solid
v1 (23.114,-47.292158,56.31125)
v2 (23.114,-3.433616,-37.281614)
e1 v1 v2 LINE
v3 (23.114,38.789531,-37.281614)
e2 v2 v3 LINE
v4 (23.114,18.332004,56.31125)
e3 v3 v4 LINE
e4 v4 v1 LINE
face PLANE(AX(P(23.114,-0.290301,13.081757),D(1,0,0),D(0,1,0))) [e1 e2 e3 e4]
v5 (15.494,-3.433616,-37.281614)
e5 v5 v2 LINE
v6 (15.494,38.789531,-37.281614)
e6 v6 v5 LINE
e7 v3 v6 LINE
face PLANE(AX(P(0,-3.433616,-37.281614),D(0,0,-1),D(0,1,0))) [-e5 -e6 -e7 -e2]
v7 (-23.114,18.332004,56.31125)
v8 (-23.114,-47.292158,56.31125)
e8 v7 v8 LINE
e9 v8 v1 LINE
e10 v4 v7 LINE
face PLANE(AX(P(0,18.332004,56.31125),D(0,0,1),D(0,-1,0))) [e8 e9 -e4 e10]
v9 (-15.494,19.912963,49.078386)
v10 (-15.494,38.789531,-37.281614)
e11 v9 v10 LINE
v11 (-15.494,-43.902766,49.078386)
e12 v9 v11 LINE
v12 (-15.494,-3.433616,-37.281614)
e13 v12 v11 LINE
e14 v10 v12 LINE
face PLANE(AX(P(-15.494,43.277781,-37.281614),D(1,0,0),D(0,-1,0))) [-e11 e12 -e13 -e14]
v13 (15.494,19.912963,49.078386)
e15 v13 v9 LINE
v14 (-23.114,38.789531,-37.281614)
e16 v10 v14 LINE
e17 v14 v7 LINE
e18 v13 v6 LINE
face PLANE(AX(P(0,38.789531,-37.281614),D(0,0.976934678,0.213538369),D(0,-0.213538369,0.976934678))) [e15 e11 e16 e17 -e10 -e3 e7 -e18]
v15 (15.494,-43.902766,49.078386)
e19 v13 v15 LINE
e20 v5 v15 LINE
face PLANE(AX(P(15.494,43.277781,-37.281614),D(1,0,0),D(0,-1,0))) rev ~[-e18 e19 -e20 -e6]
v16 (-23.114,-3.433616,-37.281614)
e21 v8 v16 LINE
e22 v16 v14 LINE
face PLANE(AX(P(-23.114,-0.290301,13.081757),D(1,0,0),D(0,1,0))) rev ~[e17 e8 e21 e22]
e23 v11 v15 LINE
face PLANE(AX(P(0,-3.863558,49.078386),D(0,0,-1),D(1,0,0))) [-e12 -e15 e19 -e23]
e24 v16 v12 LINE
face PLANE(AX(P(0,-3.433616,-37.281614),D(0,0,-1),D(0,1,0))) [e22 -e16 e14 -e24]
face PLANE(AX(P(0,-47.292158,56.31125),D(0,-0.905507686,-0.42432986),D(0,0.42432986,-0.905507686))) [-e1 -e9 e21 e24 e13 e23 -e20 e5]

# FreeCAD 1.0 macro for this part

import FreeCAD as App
import Part
import Sketcher
Q = App.Units.Quantity


def add_polygon(sketch, points):
    """Adds a closed chain of lines whose ends are joined by coincident constraints."""
    first, n = sketch.GeometryCount, len(points)
    for a, b in zip(points, points[1:] + points[:1]):
        sketch.addGeometry(Part.LineSegment(App.Vector(*a, 0), App.Vector(*b, 0)), False)
    for i in range(n):
        sketch.addConstraint(Sketcher.Constraint("Coincident", first + i, 2, first + (i + 1) % n, 1))

doc = App.newDocument("Part")
params = doc.addObject("Spreadsheet::Sheet", "Params")
for row, (alias, value) in enumerate([
    ("pad1_length", "1.82 in"),
    ("sketch2_width", "1.22 in"),
    ("pocket1_length", "3.4 in"),
], start=1):
    params.set(f"A{row}", alias)
    params.set(f"B{row}", "=" + value)
    params.setAlias(f"B{row}", alias)

body = doc.addObject("PartDesign::Body", "Body")

# Sketch on YZ plane
sketch1 = body.newObject("Sketcher::SketchObject", "Sketch")
sketch1.AttachmentSupport = (doc.getObject("YZ_Plane"), [""])
sketch1.MapMode = "FlatFace"
add_polygon(sketch1, [(18, 56), (-47, 56), (-3, -37), (39, -37)])  # lines 0-3
sketch1.addConstraint([
    Sketcher.Constraint("Horizontal", 0),
    Sketcher.Constraint("Horizontal", 2),
    Sketcher.Constraint("DistanceX", 0, 2, 0, 1, 65.624162),
    Sketcher.Constraint("Distance", 3, 95.802581),
    Sketcher.Constraint("DistanceX", 2, 1, 2, 2, 42.223147),
    Sketcher.Constraint("DistanceY", -1, 1, 0, 2, 56.31125),
    Sketcher.Constraint("DistanceX", -1, 1, 2, 2, 38.789531),
    Sketcher.Constraint("DistanceX", 0, 2, 2, 2, 86.081689),
])
pad1 = body.newObject("PartDesign::Pad", "Pad")
pad1.Profile = sketch1
pad1.setExpression("Length", "Params.pad1_length")
pad1.Midplane = True

# Sketch on XY plane
sketch2 = body.newObject("Sketcher::SketchObject", "Sketch001")
sketch2.AttachmentSupport = (doc.getObject("XY_Plane"), [""])
sketch2.MapMode = "FlatFace"
sketch2.AttachmentOffset = App.Placement(App.Vector(0, 0, -37.281614), App.Rotation())
add_polygon(sketch2, [(-15, -51), (-15, 43), (15, 43), (15, -51)])  # lines 0-3
sketch2.addConstraint([
    Sketcher.Constraint("Vertical", 0),
    Sketcher.Constraint("Horizontal", 1),
    Sketcher.Constraint("Vertical", 2),
    Sketcher.Constraint("Horizontal", 3),
    Sketcher.Constraint("DistanceX", 1, 1, 1, 2, Q("1.22 in")),
    Sketcher.Constraint("DistanceX", 0, 2, -1, 1, Q("0.61 in")),
    Sketcher.Constraint("DistanceY", 0, 1, 0, 2, 94.282678),
    Sketcher.Constraint("DistanceY", -1, 1, 0, 2, 43.277781),
])
sketch2.setExpression("Constraints[8]", "Params.sketch2_width")
pocket1 = body.newObject("PartDesign::Pocket", "Pocket")
pocket1.Profile = sketch2
pocket1.setExpression("Length", "Params.pocket1_length")
pocket1.Reversed = True

doc.recompute()
